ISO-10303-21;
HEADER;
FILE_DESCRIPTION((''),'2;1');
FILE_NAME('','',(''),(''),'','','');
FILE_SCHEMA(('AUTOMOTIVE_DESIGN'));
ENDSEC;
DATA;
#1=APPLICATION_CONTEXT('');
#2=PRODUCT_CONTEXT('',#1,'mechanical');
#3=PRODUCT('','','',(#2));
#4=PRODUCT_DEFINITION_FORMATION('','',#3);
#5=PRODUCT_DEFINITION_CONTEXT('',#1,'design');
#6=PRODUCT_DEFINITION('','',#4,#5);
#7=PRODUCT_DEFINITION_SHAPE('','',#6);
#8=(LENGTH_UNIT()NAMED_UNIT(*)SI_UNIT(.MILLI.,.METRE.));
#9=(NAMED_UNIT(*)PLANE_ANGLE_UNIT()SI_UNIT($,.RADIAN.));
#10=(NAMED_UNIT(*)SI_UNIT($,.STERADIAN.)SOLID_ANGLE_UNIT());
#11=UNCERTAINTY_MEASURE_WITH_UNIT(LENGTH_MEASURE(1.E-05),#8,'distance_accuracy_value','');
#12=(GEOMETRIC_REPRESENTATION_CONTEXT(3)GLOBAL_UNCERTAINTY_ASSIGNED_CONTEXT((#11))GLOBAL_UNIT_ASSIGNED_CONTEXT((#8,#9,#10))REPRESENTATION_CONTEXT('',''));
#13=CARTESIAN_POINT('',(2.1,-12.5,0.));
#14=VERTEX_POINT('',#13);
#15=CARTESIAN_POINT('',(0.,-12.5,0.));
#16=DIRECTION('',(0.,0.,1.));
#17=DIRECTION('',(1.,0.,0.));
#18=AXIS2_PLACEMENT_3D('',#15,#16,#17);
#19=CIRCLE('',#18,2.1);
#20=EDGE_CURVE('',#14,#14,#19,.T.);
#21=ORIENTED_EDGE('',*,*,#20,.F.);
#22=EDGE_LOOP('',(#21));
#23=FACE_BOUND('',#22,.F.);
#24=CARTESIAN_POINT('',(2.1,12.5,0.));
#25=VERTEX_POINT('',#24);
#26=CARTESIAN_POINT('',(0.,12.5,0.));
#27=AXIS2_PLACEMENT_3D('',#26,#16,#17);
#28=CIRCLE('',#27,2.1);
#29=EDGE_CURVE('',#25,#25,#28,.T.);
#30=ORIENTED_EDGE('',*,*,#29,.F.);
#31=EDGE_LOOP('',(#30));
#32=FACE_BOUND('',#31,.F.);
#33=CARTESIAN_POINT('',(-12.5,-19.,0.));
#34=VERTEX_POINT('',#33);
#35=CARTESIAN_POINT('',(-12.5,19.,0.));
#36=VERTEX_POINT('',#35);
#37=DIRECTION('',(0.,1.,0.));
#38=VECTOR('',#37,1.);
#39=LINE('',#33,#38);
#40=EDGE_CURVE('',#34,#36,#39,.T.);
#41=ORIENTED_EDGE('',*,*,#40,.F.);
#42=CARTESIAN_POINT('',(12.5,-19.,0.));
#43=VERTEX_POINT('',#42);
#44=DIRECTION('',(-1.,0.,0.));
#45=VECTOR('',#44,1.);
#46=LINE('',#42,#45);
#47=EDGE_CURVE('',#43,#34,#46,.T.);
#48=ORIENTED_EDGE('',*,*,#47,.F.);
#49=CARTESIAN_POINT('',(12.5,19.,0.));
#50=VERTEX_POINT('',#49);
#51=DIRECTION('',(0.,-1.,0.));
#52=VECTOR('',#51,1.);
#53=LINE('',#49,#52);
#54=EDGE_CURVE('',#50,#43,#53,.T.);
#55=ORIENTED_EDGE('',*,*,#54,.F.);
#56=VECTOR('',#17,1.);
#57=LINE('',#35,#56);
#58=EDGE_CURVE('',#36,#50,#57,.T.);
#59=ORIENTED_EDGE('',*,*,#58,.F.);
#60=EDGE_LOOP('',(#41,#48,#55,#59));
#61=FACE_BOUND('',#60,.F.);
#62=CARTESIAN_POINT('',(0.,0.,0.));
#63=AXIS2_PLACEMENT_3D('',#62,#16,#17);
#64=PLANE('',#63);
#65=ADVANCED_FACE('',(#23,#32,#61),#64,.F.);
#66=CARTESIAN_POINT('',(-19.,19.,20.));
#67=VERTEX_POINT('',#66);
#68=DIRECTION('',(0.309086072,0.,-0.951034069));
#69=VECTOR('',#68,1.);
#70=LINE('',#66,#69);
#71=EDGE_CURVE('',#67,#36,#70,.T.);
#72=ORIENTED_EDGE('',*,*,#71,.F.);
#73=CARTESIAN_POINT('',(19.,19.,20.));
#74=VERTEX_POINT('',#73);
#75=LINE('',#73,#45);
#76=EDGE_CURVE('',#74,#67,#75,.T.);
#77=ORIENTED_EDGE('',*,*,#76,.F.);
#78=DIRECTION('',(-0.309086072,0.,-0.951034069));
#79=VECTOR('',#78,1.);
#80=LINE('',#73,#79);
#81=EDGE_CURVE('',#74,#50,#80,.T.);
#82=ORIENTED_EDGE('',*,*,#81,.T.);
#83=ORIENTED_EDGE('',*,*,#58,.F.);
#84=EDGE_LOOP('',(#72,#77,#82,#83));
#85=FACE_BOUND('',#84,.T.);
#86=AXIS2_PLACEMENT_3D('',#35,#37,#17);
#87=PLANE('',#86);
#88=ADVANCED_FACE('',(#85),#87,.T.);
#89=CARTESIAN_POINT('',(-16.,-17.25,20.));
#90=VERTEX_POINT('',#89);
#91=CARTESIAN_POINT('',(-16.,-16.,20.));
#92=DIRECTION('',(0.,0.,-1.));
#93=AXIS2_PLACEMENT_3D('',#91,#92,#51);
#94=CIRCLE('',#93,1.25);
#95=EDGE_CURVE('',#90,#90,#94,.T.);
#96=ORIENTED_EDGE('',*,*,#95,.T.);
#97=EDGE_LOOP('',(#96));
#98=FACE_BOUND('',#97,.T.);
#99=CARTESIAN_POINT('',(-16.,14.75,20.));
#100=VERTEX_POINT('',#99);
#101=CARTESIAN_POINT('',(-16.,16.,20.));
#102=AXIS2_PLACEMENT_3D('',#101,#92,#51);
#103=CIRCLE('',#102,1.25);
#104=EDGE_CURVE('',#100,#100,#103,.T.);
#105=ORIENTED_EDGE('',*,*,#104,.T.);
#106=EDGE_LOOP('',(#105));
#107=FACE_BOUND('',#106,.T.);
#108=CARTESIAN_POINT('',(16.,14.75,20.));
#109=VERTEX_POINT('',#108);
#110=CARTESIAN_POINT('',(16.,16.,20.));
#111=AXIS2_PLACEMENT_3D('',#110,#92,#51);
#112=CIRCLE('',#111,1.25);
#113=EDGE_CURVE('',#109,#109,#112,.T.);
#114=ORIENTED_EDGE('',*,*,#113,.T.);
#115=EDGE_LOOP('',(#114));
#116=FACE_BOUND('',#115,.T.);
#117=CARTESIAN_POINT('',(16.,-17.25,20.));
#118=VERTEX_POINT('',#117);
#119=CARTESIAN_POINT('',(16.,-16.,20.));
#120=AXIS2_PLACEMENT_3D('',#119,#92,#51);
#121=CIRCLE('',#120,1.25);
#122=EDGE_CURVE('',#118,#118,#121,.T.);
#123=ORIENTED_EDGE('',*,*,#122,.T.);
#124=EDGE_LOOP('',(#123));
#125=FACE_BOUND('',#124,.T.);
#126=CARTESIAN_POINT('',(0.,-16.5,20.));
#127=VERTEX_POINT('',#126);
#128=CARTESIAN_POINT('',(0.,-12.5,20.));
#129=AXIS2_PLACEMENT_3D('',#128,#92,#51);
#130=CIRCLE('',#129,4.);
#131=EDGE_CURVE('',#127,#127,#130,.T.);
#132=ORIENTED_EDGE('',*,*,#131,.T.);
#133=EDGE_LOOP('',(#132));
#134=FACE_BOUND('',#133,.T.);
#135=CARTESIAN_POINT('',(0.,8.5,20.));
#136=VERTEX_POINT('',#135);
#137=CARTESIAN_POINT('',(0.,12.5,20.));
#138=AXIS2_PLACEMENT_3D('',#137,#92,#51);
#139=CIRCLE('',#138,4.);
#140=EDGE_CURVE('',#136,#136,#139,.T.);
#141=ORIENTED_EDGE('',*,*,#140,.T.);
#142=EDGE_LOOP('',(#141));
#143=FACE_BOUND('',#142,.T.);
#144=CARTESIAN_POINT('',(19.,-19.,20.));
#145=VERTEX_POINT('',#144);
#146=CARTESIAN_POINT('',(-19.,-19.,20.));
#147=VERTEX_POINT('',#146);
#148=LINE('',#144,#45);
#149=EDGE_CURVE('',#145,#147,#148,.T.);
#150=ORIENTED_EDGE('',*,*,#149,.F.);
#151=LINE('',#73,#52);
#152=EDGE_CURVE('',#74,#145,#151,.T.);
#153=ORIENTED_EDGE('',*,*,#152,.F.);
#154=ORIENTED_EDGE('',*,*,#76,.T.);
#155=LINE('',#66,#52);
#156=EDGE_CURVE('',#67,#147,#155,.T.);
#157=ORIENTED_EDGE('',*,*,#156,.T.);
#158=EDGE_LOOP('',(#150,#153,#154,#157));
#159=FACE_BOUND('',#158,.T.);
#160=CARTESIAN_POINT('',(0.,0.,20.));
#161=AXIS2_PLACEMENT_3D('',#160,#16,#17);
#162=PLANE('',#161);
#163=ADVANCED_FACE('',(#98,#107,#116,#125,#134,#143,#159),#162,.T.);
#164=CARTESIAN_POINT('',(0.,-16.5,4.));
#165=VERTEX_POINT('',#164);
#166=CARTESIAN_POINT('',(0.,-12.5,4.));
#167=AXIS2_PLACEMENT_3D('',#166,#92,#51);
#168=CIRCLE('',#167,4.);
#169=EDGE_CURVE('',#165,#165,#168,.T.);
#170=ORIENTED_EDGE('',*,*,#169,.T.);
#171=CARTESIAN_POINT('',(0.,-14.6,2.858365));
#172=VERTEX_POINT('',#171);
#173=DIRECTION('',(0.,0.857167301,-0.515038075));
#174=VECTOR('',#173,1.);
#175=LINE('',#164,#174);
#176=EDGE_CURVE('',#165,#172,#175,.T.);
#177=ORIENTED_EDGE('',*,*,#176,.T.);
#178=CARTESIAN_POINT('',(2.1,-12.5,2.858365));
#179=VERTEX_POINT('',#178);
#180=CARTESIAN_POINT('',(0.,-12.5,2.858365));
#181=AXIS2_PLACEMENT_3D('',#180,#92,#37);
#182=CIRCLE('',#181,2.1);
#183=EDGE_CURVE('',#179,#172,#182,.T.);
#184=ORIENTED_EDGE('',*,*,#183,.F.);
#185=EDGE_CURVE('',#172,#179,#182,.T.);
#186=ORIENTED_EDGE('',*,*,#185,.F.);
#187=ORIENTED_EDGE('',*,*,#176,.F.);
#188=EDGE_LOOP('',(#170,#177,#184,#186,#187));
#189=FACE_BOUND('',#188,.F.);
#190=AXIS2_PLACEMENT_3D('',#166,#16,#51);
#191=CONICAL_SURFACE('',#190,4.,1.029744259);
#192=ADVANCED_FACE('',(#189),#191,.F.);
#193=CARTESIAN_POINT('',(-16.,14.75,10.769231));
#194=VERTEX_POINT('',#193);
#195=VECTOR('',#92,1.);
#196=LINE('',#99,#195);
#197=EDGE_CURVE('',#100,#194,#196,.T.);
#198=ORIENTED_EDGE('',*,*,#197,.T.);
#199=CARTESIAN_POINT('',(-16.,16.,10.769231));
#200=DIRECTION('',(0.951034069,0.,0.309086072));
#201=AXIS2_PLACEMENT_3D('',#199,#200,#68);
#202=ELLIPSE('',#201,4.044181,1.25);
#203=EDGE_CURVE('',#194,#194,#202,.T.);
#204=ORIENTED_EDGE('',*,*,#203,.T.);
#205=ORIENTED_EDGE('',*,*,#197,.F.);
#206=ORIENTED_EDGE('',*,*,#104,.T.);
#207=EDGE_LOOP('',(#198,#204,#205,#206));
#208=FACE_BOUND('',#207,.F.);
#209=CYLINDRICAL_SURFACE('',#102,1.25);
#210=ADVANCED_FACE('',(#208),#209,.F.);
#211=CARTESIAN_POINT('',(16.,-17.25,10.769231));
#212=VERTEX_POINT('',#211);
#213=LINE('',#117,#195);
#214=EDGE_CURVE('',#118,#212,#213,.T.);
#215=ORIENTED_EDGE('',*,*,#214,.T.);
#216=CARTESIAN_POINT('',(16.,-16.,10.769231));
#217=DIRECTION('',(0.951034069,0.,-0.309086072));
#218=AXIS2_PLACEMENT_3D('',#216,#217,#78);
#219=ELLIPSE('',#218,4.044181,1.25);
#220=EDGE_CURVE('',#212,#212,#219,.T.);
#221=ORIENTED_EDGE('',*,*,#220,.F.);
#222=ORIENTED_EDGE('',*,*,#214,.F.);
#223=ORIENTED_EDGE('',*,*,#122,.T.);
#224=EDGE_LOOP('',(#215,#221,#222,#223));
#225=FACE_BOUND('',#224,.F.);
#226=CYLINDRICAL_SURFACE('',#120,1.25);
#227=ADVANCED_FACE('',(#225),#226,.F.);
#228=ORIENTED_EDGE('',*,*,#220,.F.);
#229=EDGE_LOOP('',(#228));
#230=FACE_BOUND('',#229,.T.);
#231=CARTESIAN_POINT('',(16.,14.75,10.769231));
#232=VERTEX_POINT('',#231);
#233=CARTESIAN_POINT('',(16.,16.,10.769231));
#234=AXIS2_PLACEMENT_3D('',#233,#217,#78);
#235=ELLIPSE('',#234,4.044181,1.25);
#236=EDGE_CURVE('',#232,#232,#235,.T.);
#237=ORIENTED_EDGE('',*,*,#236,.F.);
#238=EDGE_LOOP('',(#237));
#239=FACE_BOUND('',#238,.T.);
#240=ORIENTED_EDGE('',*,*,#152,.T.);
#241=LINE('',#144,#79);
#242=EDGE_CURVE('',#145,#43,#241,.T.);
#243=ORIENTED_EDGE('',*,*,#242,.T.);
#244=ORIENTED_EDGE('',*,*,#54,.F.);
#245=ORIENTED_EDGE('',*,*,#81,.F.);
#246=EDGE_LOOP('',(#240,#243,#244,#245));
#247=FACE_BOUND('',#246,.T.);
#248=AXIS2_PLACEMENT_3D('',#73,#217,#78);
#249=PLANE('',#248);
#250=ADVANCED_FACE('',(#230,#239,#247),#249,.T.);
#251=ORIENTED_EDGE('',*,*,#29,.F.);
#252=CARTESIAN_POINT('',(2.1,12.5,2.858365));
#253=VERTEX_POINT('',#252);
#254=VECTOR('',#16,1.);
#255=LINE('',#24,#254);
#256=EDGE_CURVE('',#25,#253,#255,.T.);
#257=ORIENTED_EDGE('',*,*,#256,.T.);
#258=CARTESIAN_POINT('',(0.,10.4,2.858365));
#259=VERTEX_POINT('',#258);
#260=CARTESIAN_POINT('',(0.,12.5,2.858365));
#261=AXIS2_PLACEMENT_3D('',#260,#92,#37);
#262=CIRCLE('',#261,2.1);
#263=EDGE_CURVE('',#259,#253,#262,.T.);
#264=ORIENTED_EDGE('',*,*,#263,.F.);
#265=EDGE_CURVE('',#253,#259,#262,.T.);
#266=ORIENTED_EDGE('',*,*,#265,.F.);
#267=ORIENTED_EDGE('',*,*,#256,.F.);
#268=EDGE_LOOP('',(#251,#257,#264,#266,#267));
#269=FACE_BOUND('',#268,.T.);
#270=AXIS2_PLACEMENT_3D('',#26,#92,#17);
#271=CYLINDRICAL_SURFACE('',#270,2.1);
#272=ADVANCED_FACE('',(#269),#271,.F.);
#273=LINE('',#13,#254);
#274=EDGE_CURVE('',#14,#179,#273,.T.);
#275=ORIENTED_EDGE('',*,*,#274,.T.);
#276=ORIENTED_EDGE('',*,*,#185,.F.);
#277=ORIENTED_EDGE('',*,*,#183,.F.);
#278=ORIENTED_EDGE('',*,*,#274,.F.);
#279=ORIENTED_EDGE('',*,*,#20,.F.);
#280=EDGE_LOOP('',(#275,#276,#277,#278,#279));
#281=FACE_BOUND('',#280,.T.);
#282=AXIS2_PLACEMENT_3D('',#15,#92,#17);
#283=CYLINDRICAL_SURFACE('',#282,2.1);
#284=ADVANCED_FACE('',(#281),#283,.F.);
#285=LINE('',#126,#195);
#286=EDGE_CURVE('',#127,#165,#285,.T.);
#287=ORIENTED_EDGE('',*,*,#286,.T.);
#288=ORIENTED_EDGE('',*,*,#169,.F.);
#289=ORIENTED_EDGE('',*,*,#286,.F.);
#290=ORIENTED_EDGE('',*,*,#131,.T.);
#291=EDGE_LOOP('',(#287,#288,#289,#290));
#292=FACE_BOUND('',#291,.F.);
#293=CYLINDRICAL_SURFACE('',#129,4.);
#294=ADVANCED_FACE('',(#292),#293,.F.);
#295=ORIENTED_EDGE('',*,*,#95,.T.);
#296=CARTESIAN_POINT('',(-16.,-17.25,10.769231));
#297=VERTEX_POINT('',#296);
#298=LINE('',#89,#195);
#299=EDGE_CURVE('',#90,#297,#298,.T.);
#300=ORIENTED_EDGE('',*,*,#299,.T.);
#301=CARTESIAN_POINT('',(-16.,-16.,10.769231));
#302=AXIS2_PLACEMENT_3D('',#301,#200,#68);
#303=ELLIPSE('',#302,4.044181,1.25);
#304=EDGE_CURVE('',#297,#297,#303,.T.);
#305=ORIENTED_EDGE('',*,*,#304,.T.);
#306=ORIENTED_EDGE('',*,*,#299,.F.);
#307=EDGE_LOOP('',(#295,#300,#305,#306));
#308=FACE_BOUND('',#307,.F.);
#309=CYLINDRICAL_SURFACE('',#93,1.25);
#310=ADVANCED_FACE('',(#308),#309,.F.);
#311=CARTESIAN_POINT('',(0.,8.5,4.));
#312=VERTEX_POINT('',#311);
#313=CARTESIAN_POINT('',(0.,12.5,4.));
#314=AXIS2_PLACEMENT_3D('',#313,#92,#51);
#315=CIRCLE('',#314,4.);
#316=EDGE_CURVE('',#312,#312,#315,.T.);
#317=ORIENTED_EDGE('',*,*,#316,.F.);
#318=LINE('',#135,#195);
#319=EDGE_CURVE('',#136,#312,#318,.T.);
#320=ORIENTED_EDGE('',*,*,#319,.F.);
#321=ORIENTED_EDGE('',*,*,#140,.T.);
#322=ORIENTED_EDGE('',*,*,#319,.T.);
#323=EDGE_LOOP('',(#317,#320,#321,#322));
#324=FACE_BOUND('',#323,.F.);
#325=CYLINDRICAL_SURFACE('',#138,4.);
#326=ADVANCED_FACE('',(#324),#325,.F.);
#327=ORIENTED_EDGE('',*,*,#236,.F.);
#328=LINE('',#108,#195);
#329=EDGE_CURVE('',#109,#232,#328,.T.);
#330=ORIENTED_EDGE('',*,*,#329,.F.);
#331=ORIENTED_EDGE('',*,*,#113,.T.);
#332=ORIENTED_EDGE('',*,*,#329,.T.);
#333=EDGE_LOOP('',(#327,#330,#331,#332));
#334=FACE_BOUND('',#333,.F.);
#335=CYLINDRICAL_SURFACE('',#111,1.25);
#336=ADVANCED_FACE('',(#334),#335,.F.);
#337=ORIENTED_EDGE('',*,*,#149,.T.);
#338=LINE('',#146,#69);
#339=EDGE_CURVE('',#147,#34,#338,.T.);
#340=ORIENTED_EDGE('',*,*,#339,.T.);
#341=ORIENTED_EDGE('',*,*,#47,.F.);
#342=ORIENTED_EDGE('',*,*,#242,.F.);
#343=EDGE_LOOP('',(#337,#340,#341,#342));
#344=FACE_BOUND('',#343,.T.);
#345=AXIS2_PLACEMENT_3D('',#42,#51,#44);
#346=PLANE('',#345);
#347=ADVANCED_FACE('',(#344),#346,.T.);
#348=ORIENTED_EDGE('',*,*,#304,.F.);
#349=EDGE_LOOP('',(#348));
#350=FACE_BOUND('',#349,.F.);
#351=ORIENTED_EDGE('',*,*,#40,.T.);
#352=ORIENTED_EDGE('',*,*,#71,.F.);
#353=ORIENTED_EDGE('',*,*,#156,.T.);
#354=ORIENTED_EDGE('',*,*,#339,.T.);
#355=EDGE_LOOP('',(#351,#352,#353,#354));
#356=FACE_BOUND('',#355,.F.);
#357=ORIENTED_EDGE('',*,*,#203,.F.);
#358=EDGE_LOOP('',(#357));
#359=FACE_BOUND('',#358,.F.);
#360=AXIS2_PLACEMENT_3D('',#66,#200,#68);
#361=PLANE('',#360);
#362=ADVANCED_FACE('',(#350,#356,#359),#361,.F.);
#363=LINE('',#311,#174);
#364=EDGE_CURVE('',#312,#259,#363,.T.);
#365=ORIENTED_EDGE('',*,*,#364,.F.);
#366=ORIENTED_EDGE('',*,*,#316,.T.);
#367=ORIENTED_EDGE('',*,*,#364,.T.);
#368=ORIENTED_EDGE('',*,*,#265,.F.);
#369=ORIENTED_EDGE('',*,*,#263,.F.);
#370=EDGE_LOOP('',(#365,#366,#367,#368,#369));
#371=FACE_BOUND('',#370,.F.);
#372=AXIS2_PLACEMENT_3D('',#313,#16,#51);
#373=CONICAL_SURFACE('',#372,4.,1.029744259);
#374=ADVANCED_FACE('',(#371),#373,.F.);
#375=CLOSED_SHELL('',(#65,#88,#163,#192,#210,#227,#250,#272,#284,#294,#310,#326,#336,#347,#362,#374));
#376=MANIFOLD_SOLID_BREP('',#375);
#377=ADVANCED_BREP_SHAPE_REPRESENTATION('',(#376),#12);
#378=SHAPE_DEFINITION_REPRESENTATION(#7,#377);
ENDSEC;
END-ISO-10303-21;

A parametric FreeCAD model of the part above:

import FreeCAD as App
import Part
import Sketcher

doc = App.newDocument("Part")
params = doc.addObject("Spreadsheet::Sheet", "Params")
for row, (alias, value) in enumerate([
    ("sketch1_diameter", "4.2 mm"),
    ("sketch1_width", "25 mm"),
    ("sketch1_height", "38 mm"),
    ("pad1_length", "20 mm"),
    ("sketch2_width", "6.5 mm"),
    ("sketch2_height", "20 mm"),
    ("pad2_length", "38 mm"),
    ("sketch3_diameter", "2.5 mm"),
    ("hole_diameter", "2.5 mm"),
    ("sketch4_diameter", "8 mm"),
    ("hole2_diameter", "8 mm"),
    ("hole2_depth", "16 mm"),
    ("sketch5_diameter", "8 mm"),
    ("hole3_diameter", "8 mm"),
    ("hole3_depth", "16 mm"),
], start=1):
    params.set(f"A{row}", alias)
    params.set(f"B{row}", "=" + value)
    params.setAlias(f"B{row}", alias)

body = doc.addObject("PartDesign::Body", "Body")

sketch1 = body.newObject("Sketcher::SketchObject", "Sketch")
sketch1.AttachmentSupport = (doc.getObject("XY_Plane"), [""])
sketch1.MapMode = "FlatFace"
sketch1.addGeometry([
    Part.LineSegment(App.Vector(-12.5, -19, 0), App.Vector(12.5, -19, 0)),
    Part.LineSegment(App.Vector(12.5, -19, 0), App.Vector(12.5, 19, 0)),
    Part.LineSegment(App.Vector(12.5, 19, 0), App.Vector(-12.5, 19, 0)),
    Part.LineSegment(App.Vector(-12.5, 19, 0), App.Vector(-12.5, -19, 0)),
    Part.Circle(App.Vector(0, -12.5, 0), App.Vector(0, 0, 1), 2.1),
    Part.Circle(App.Vector(0, 12.5, 0), App.Vector(0, 0, 1), 2.1),
], False)
sketch1.addConstraint([
    Sketcher.Constraint("Coincident", 0, 2, 1, 1),
    Sketcher.Constraint("Coincident", 1, 2, 2, 1),
    Sketcher.Constraint("Coincident", 2, 2, 3, 1),
    Sketcher.Constraint("Coincident", 3, 2, 0, 1),
    Sketcher.Constraint("Horizontal", 0),
    Sketcher.Constraint("Vertical", 1),
    Sketcher.Constraint("Horizontal", 2),
    Sketcher.Constraint("Vertical", 3),
    Sketcher.Constraint("Equal", 4, 5),
    Sketcher.Constraint("Symmetric", 4, 3, 5, 3, -1, 1),
    Sketcher.Constraint("Symmetric", 0, 2, 2, 2, -1, 1),
    Sketcher.Constraint("PointOnObject", 4, 3, -2),
    Sketcher.Constraint("Diameter", 4, 4.2),
    Sketcher.Constraint("DistanceX", 0, 1, 0, 2, 25.0),
    Sketcher.Constraint("DistanceY", 1, 1, 1, 2, 38.0),
    Sketcher.Constraint("DistanceY", 4, 3, 5, 3, 25.0),
])
sketch1.setExpression("Constraints[12]", "Params.sketch1_diameter")
sketch1.setExpression("Constraints[13]", "Params.sketch1_width")
sketch1.setExpression("Constraints[14]", "Params.sketch1_height")
pad1 = body.newObject("PartDesign::Pad", "Pad")
pad1.Profile = sketch1
pad1.setExpression("Length", "Params.pad1_length")

sketch2 = body.newObject("Sketcher::SketchObject", "Sketch001")
sketch2.AttachmentSupport = (doc.getObject("XZ_Plane"), [""])
sketch2.MapMode = "FlatFace"
sketch2.AttachmentOffset = App.Placement(App.Vector(0, 0, -19), App.Rotation())
sketch2.addGeometry([
    Part.LineSegment(App.Vector(12, 0, 0), App.Vector(12, 20, 0)),
    Part.LineSegment(App.Vector(12, 20, 0), App.Vector(19, 20, 0)),
    Part.LineSegment(App.Vector(19, 20, 0), App.Vector(12, 0, 0)),
    Part.LineSegment(App.Vector(-12, 20, 0), App.Vector(-12, 0, 0)),
    Part.LineSegment(App.Vector(-12, 0, 0), App.Vector(-19, 20, 0)),
    Part.LineSegment(App.Vector(-19, 20, 0), App.Vector(-12, 20, 0)),
], False)
sketch2.addConstraint([
    Sketcher.Constraint("Coincident", 0, 2, 1, 1),
    Sketcher.Constraint("Coincident", 1, 2, 2, 1),
    Sketcher.Constraint("Coincident", 2, 2, 0, 1),
    Sketcher.Constraint("Coincident", 3, 2, 4, 1),
    Sketcher.Constraint("Coincident", 4, 2, 5, 1),
    Sketcher.Constraint("Coincident", 5, 2, 3, 1),
    Sketcher.Constraint("Vertical", 0),
    Sketcher.Constraint("Horizontal", 1),
    Sketcher.Constraint("Vertical", 3),
    Sketcher.Constraint("Horizontal", 5),
    Sketcher.Constraint("Symmetric", 2, 2, 3, 2, -1, 1),
    Sketcher.Constraint("Symmetric", 1, 2, 4, 2, -2),
    Sketcher.Constraint("PointOnObject", 2, 2, -1),
    Sketcher.Constraint("DistanceX", 1, 1, 1, 2, 6.5),
    Sketcher.Constraint("DistanceY", 0, 1, 0, 2, 20.0),
    Sketcher.Constraint("DistanceX", -1, 1, 1, 2, 19.0),
])
sketch2.setExpression("Constraints[13]", "Params.sketch2_width")
sketch2.setExpression("Constraints[14]", "Params.sketch2_height")
pad2 = body.newObject("PartDesign::Pad", "Pad001")
pad2.Profile = sketch2
pad2.setExpression("Length", "Params.pad2_length")

sketch3 = body.newObject("Sketcher::SketchObject", "Sketch002")
sketch3.AttachmentSupport = (doc.getObject("XY_Plane"), [""])
sketch3.MapMode = "FlatFace"
sketch3.AttachmentOffset = App.Placement(App.Vector(0, 0, 20), App.Rotation())
sketch3.addGeometry([
    Part.Circle(App.Vector(-16, 16, 0), App.Vector(0, 0, 1), 1.2),
    Part.Circle(App.Vector(16, 16, 0), App.Vector(0, 0, 1), 1.2),
    Part.Circle(App.Vector(-16, -16, 0), App.Vector(0, 0, 1), 1.2),
    Part.Circle(App.Vector(16, -16, 0), App.Vector(0, 0, 1), 1.2),
], False)
sketch3.addConstraint([
    Sketcher.Constraint("Equal", 0, 1),
    Sketcher.Constraint("Equal", 1, 2),
    Sketcher.Constraint("Equal", 2, 3),
    Sketcher.Constraint("Symmetric", 1, 3, 2, 3, -1, 1),
    Sketcher.Constraint("Symmetric", 0, 3, 3, 3, -1, 1),
    Sketcher.Constraint("Symmetric", 0, 3, 1, 3, -2),
    Sketcher.Constraint("Diameter", 0, 2.5),
    Sketcher.Constraint("DistanceX", 0, 3, -1, 1, 16.0),
    Sketcher.Constraint("DistanceY", -1, 1, 0, 3, 16.0),
])
sketch3.setExpression("Constraints[6]", "Params.sketch3_diameter")
doc.recompute()
hole = body.newObject("PartDesign::Hole", "Hole")
hole.Profile = sketch3
hole.ThreadType = "None"
hole.setExpression("Diameter", "Params.hole_diameter")
hole.DepthType = "ThroughAll"

sketch4 = body.newObject("Sketcher::SketchObject", "Sketch003")
sketch4.AttachmentSupport = (doc.getObject("XY_Plane"), [""])
sketch4.MapMode = "FlatFace"
sketch4.AttachmentOffset = App.Placement(App.Vector(0, 0, 20), App.Rotation())
sketch4.addGeometry(Part.Circle(App.Vector(0, -12.5, 0), App.Vector(0, 0, 1), 4), False)
sketch4.addConstraint([
    Sketcher.Constraint("PointOnObject", 0, 3, -2),
    Sketcher.Constraint("Diameter", 0, 8.0),
    Sketcher.Constraint("DistanceY", 0, 3, -1, 1, 12.5),
])
sketch4.setExpression("Constraints[1]", "Params.sketch4_diameter")
doc.recompute()
hole2 = body.newObject("PartDesign::Hole", "Hole001")
hole2.Profile = sketch4
hole2.ThreadType = "None"
hole2.setExpression("Diameter", "Params.hole2_diameter")
hole2.DepthType = "Dimension"
hole2.setExpression("Depth", "Params.hole2_depth")
hole2.DrillPoint = "Angled"
hole2.DrillPointAngle = 118

sketch5 = body.newObject("Sketcher::SketchObject", "Sketch004")
sketch5.AttachmentSupport = (doc.getObject("XY_Plane"), [""])
sketch5.MapMode = "FlatFace"
sketch5.AttachmentOffset = App.Placement(App.Vector(0, 0, 20), App.Rotation())
sketch5.addGeometry(Part.Circle(App.Vector(0, 12.5, 0), App.Vector(0, 0, 1), 4), False)
sketch5.addConstraint([
    Sketcher.Constraint("PointOnObject", 0, 3, -2),
    Sketcher.Constraint("Diameter", 0, 8.0),
    Sketcher.Constraint("DistanceY", -1, 1, 0, 3, 12.5),
])
sketch5.setExpression("Constraints[1]", "Params.sketch5_diameter")
doc.recompute()
hole3 = body.newObject("PartDesign::Hole", "Hole002")
hole3.Profile = sketch5
hole3.ThreadType = "None"
hole3.setExpression("Diameter", "Params.hole3_diameter")
hole3.DepthType = "Dimension"
hole3.setExpression("Depth", "Params.hole3_depth")
hole3.DrillPoint = "Angled"
hole3.DrillPointAngle = 118

doc.recompute()
